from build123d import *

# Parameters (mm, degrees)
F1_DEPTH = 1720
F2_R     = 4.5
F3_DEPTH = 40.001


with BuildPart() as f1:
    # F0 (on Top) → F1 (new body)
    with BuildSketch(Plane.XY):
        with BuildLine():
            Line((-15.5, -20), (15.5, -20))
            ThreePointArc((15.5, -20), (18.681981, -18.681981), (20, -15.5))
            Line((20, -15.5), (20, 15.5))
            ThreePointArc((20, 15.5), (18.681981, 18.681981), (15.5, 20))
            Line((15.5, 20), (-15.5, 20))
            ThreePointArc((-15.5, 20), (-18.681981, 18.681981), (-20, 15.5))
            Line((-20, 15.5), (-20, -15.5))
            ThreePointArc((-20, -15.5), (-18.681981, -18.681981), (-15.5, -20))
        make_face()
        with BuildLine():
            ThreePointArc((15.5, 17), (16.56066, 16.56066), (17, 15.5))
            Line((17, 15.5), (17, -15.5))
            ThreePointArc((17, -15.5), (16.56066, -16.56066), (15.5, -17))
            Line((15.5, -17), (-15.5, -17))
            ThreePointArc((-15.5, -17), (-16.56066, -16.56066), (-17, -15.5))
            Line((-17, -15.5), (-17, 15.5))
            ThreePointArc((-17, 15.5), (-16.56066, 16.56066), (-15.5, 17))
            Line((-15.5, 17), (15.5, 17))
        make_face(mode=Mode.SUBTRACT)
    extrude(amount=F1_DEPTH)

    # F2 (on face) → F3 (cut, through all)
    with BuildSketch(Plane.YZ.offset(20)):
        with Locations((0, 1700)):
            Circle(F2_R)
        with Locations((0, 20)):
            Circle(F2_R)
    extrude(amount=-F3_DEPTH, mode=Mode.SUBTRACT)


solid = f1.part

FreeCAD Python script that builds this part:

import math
import FreeCAD as App
import Part
import Sketcher
Q = App.Units.Quantity

doc = App.newDocument("Part")
params = doc.addObject("Spreadsheet::Sheet", "Params")
for row, (alias, value) in enumerate([
    ("sketch1_radius", "4.499998 mm"),
    ("sketch1_radius2", "1.500001 mm"),
    ("sketch1_width", "31 mm"),
    ("pad1_length", "1720 mm"),
    ("sketch2_diameter", "9 mm"),
], start=1):
    params.set(f"A{row}", alias)
    params.set(f"B{row}", "=" + value)
    params.setAlias(f"B{row}", alias)

body = doc.addObject("PartDesign::Body", "Body")

# Sketch on XY plane
sketch1 = doc.addObject("Sketcher::SketchObject", "Sketch")
body.addObject(sketch1)
sketch1.AttachmentSupport = (doc.XY_Plane, [""])
sketch1.MapMode = "FlatFace"
sketch1.addGeometry(Part.LineSegment(App.Vector(-15.5, -20, 0), App.Vector(15.5, -20, 0)), False)
sketch1.addGeometry(Part.ArcOfCircle(Part.Circle(App.Vector(15.500002, -15.500002, 0), App.Vector(0, 0, 1), 4.499998), math.radians(-90.000021), math.radians(0.000021)), False)
sketch1.addGeometry(Part.LineSegment(App.Vector(20, -15.5, 0), App.Vector(20, 15.5, 0)), False)
sketch1.addGeometry(Part.ArcOfCircle(Part.Circle(App.Vector(15.500002, 15.500002, 0), App.Vector(0, 0, 1), 4.499998), math.radians(-0.000021), math.radians(90.000021)), False)
sketch1.addGeometry(Part.LineSegment(App.Vector(15.5, 20, 0), App.Vector(-15.5, 20, 0)), False)
sketch1.addGeometry(Part.ArcOfCircle(Part.Circle(App.Vector(-15.500002, 15.500002, 0), App.Vector(0, 0, 1), 4.499998), math.radians(89.999979), math.radians(180.000021)), False)
sketch1.addGeometry(Part.LineSegment(App.Vector(-20, 15.5, 0), App.Vector(-20, -15.5, 0)), False)
sketch1.addGeometry(Part.ArcOfCircle(Part.Circle(App.Vector(-15.500002, -15.500002, 0), App.Vector(0, 0, 1), 4.499998), math.radians(179.999979), math.radians(270.000021)), False)
sketch1.addGeometry(Part.LineSegment(App.Vector(-15.5, 17, 0), App.Vector(15.5, 17, 0)), False)
sketch1.addGeometry(Part.ArcOfCircle(Part.Circle(App.Vector(15.499999, 15.499999, 0), App.Vector(0, 0, 1), 1.500001), math.radians(0.000022), math.radians(89.999978)), False)
sketch1.addGeometry(Part.LineSegment(App.Vector(17, 15.5, 0), App.Vector(17, -15.5, 0)), False)
sketch1.addGeometry(Part.ArcOfCircle(Part.Circle(App.Vector(15.499999, -15.499999, 0), App.Vector(0, 0, 1), 1.500001), math.radians(-89.999978), math.radians(-0.000022)), False)
sketch1.addGeometry(Part.LineSegment(App.Vector(15.5, -17, 0), App.Vector(-15.5, -17, 0)), False)
sketch1.addGeometry(Part.ArcOfCircle(Part.Circle(App.Vector(-15.499999, -15.499999, 0), App.Vector(0, 0, 1), 1.500001), math.radians(-179.999978), math.radians(-90.000022)), False)
sketch1.addGeometry(Part.LineSegment(App.Vector(-17, -15.5, 0), App.Vector(-17, 15.5, 0)), False)
sketch1.addGeometry(Part.ArcOfCircle(Part.Circle(App.Vector(-15.499999, 15.499999, 0), App.Vector(0, 0, 1), 1.500001), math.radians(90.000022), math.radians(179.999978)), False)
sketch1.addConstraint(Sketcher.Constraint("Tangent", 0, 2, 1, 1))
sketch1.addConstraint(Sketcher.Constraint("Tangent", 1, 2, 2, 1))
sketch1.addConstraint(Sketcher.Constraint("Tangent", 2, 2, 3, 1))
sketch1.addConstraint(Sketcher.Constraint("Tangent", 3, 2, 4, 1))
sketch1.addConstraint(Sketcher.Constraint("Tangent", 4, 2, 5, 1))
sketch1.addConstraint(Sketcher.Constraint("Tangent", 5, 2, 6, 1))
sketch1.addConstraint(Sketcher.Constraint("Tangent", 6, 2, 7, 1))
sketch1.addConstraint(Sketcher.Constraint("Tangent", 7, 2, 0, 1))
sketch1.addConstraint(Sketcher.Constraint("Tangent", 8, 2, 9, 2))
sketch1.addConstraint(Sketcher.Constraint("Tangent", 9, 1, 10, 1))
sketch1.addConstraint(Sketcher.Constraint("Tangent", 10, 2, 11, 2))
sketch1.addConstraint(Sketcher.Constraint("Tangent", 11, 1, 12, 1))
sketch1.addConstraint(Sketcher.Constraint("Tangent", 12, 2, 13, 2))
sketch1.addConstraint(Sketcher.Constraint("Tangent", 13, 1, 14, 1))
sketch1.addConstraint(Sketcher.Constraint("Tangent", 14, 2, 15, 2))
sketch1.addConstraint(Sketcher.Constraint("Tangent", 15, 1, 8, 1))
sketch1.addConstraint(Sketcher.Constraint("Horizontal", 0))
sketch1.addConstraint(Sketcher.Constraint("Vertical", 2))
sketch1.addConstraint(Sketcher.Constraint("Horizontal", 4))
sketch1.addConstraint(Sketcher.Constraint("Vertical", 6))
sketch1.addConstraint(Sketcher.Constraint("Horizontal", 8))
sketch1.addConstraint(Sketcher.Constraint("Vertical", 10))
sketch1.addConstraint(Sketcher.Constraint("Horizontal", 12))
sketch1.addConstraint(Sketcher.Constraint("Vertical", 14))
sketch1.addConstraint(Sketcher.Constraint("Coincident", 9, 3, 3, 3))
sketch1.addConstraint(Sketcher.Constraint("Coincident", 11, 3, 1, 3))
sketch1.addConstraint(Sketcher.Constraint("Coincident", 13, 3, 7, 3))
sketch1.addConstraint(Sketcher.Constraint("Equal", 1, 3))
sketch1.addConstraint(Sketcher.Constraint("Equal", 3, 5))
sketch1.addConstraint(Sketcher.Constraint("Equal", 5, 7))
sketch1.addConstraint(Sketcher.Constraint("Equal", 13, 15))
sketch1.addConstraint(Sketcher.Constraint("Symmetric", 1, 3, 5, 3, -1, 1))
sketch1.addConstraint(Sketcher.Constraint("Equal", 12, 2))
sketch1.addConstraint(Sketcher.Constraint("Radius", 1, Q("4.499998 mm")))
sketch1.addConstraint(Sketcher.Constraint("Radius", 9, Q("1.500001 mm")))
sketch1.addConstraint(Sketcher.Constraint("DistanceX", 0, 1, 0, 2, Q("31 mm")))
sketch1.setExpression("Constraints[33]", "Params.sketch1_radius")
sketch1.setExpression("Constraints[34]", "Params.sketch1_radius2")
sketch1.setExpression("Constraints[35]", "Params.sketch1_width")
pad1 = doc.addObject("PartDesign::Pad", "Pad")
body.addObject(pad1)
pad1.Profile = sketch1
pad1.setExpression("Length", "Params.pad1_length")

# Sketch on YZ plane
sketch2 = doc.addObject("Sketcher::SketchObject", "Sketch001")
body.addObject(sketch2)
sketch2.AttachmentSupport = (doc.YZ_Plane, [""])
sketch2.MapMode = "FlatFace"
sketch2.AttachmentOffset = App.Placement(App.Vector(0, 0, 20), App.Rotation())
sketch2.addGeometry(Part.Circle(App.Vector(0, 1700, 0), App.Vector(0, 0, 1), 4.5), False)
sketch2.addGeometry(Part.Circle(App.Vector(0, 20, 0), App.Vector(0, 0, 1), 4.5), False)
sketch2.addConstraint(Sketcher.Constraint("Equal", 0, 1))
sketch2.addConstraint(Sketcher.Constraint("PointOnObject", 0, 3, -2))
sketch2.addConstraint(Sketcher.Constraint("PointOnObject", 1, 3, -2))
sketch2.addConstraint(Sketcher.Constraint("Diameter", 0, Q("9 mm")))
sketch2.addConstraint(Sketcher.Constraint("DistanceY", -1, 1, 0, 3, Q("1700 mm")))
sketch2.addConstraint(Sketcher.Constraint("DistanceY", -1, 1, 1, 3, Q("20 mm")))
sketch2.setExpression("Constraints[3]", "Params.sketch2_diameter")
pocket1 = doc.addObject("PartDesign::Pocket", "Pocket")
body.addObject(pocket1)
pocket1.Profile = sketch2
pocket1.Type = "ThroughAll"

doc.recompute()
